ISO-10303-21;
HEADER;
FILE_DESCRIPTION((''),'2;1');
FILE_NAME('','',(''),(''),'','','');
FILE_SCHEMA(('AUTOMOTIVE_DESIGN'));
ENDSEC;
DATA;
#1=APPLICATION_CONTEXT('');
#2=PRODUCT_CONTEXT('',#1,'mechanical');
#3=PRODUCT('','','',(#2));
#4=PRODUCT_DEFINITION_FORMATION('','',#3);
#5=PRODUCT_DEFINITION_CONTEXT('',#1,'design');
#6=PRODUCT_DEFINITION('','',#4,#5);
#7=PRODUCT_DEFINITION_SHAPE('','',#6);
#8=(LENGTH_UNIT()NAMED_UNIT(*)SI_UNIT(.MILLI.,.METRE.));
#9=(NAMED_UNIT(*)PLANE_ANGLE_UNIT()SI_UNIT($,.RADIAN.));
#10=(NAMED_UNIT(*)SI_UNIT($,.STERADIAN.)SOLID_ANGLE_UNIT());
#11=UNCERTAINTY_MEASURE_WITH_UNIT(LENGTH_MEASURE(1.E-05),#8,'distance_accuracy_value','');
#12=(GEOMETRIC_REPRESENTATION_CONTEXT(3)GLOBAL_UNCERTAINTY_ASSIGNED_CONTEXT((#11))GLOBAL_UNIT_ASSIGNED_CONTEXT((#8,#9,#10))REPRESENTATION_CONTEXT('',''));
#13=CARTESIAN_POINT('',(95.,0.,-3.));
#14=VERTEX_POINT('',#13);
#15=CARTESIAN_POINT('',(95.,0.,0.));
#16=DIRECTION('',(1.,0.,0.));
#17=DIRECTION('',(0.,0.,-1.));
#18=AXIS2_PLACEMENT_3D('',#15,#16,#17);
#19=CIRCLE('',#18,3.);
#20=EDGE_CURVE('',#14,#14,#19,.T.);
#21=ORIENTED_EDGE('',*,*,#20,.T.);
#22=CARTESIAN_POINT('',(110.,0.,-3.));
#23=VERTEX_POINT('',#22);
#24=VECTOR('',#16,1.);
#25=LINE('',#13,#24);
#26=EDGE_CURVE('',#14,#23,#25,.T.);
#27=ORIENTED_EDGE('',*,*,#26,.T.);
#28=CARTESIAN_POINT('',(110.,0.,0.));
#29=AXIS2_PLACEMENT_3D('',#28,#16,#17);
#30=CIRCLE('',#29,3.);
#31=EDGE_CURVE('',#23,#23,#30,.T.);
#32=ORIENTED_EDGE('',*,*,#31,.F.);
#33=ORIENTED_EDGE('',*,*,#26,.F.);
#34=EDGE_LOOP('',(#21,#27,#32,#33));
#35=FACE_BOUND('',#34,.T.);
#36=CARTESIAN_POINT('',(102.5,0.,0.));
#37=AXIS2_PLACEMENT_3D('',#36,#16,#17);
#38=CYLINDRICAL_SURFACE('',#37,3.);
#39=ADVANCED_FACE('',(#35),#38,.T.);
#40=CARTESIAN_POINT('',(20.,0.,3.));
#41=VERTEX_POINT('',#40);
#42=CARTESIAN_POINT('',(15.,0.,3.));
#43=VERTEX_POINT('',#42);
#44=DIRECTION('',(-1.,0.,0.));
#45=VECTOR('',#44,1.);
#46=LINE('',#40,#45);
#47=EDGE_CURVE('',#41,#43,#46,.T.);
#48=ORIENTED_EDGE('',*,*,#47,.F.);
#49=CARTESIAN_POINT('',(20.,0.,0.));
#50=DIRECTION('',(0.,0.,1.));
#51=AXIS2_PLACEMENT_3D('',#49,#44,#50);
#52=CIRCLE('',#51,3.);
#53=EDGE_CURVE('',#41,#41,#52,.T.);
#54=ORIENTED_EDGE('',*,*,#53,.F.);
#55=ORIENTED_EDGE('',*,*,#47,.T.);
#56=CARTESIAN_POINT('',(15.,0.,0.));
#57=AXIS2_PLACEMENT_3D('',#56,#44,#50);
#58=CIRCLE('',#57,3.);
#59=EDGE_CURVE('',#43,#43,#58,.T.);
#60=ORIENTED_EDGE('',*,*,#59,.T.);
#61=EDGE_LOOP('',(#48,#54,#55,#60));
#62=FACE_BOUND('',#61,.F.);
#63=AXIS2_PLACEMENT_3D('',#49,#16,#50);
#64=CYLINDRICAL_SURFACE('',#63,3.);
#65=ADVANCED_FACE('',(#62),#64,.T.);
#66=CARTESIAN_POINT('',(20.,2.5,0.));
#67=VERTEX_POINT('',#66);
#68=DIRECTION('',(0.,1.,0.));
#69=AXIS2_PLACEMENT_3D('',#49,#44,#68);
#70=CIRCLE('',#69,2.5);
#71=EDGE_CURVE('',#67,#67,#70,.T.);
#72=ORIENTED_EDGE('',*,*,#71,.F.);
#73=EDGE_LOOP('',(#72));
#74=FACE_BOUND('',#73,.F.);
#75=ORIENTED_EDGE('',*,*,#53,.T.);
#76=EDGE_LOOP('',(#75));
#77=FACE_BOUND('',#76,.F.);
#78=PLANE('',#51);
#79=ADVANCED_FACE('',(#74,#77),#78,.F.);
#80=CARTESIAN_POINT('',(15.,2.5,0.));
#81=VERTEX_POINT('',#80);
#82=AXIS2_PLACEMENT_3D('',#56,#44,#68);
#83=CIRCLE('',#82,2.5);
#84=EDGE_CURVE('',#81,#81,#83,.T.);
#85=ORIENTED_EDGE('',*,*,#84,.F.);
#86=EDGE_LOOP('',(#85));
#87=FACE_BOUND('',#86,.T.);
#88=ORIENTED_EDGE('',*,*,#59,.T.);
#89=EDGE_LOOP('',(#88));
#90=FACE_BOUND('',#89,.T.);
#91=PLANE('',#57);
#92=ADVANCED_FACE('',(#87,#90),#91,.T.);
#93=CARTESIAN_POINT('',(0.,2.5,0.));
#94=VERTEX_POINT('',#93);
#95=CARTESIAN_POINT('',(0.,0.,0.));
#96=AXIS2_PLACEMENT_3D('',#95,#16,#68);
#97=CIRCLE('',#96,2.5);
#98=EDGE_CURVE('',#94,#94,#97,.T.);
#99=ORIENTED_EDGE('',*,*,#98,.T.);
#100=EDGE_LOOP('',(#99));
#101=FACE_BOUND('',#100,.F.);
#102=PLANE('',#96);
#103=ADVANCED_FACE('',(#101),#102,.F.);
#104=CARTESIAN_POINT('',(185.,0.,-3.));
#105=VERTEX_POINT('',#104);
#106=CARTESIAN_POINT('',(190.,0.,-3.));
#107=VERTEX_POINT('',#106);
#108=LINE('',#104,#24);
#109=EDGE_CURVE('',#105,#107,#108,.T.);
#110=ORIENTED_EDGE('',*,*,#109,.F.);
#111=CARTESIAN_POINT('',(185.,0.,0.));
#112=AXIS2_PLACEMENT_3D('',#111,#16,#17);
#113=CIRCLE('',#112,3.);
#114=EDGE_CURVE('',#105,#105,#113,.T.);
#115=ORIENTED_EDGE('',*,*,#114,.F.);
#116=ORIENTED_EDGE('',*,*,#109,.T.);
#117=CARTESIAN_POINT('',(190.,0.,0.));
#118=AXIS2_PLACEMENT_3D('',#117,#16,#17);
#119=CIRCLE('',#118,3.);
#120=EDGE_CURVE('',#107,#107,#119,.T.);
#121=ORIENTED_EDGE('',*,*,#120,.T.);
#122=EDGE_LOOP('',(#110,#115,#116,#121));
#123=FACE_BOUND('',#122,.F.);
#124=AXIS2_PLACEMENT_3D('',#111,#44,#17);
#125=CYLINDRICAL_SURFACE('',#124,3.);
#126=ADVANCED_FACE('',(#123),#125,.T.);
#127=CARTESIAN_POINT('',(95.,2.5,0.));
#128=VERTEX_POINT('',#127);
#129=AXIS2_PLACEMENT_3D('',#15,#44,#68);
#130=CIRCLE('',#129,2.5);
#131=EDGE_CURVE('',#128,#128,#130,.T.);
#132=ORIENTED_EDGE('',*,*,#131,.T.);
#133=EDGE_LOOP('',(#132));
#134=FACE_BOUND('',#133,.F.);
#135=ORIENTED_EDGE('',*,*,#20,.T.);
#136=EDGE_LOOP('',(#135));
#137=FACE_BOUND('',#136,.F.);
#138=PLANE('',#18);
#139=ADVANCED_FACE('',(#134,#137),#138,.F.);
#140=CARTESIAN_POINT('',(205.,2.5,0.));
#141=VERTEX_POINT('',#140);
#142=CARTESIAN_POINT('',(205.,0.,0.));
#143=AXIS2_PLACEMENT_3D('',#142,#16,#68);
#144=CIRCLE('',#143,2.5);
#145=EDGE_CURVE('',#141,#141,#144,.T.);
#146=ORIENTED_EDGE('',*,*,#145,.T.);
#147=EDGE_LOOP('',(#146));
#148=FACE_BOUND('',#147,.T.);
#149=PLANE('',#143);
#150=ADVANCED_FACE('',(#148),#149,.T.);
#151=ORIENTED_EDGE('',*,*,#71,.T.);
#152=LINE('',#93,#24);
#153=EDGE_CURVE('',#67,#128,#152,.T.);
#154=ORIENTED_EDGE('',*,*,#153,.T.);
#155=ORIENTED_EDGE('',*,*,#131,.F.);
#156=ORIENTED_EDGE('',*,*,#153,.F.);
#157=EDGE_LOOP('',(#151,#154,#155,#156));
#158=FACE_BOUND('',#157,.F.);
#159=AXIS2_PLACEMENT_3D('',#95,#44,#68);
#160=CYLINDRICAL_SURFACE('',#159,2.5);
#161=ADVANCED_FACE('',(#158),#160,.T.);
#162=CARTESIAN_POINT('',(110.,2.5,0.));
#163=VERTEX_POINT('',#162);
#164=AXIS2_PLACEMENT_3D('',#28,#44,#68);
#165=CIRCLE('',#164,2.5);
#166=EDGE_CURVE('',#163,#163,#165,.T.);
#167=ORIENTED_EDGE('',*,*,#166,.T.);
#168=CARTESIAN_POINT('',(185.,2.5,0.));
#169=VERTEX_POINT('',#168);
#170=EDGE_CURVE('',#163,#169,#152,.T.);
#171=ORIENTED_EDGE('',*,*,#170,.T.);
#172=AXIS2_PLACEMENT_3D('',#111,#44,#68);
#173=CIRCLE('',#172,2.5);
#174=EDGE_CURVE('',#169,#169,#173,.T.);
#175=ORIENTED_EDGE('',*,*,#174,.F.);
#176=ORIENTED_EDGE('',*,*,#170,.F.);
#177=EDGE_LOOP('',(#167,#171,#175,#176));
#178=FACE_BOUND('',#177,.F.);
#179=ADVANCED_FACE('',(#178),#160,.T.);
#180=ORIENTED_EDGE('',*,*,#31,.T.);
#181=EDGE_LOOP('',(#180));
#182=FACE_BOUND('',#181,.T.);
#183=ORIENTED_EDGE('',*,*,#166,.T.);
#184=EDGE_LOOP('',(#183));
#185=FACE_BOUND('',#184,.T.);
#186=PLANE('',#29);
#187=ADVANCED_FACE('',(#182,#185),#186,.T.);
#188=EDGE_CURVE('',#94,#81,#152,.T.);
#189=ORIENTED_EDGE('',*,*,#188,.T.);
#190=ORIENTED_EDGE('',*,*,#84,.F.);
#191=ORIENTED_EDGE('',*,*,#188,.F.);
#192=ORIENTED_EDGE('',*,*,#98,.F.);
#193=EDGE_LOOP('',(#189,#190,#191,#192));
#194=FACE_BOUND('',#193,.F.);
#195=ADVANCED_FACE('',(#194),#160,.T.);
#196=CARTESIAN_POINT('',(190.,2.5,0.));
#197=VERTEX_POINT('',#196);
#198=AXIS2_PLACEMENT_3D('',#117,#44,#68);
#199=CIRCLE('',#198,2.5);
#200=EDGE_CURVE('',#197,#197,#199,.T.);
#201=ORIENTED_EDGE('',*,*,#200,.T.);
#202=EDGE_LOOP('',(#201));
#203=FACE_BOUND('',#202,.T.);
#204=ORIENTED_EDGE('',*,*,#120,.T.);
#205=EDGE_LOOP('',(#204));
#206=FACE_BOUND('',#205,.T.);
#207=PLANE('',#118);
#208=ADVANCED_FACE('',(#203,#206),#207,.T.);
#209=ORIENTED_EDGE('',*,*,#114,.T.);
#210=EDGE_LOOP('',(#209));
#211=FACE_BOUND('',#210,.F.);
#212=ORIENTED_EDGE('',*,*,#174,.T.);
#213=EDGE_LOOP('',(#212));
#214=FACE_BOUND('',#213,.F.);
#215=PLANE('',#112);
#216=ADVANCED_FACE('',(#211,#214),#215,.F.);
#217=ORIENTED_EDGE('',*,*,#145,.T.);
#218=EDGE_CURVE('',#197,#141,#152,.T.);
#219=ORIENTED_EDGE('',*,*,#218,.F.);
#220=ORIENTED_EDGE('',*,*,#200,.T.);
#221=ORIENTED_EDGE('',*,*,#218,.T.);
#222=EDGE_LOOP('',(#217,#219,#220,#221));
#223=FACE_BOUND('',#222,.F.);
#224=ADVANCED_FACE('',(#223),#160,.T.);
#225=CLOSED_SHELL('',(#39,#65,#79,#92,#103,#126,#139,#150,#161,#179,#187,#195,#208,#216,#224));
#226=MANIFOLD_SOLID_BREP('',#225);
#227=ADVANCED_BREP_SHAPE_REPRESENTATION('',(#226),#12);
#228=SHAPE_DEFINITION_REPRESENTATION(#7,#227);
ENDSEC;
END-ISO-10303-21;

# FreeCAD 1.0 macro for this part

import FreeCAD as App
import Part
import Sketcher

doc = App.newDocument("Part")
body = doc.addObject("PartDesign::Body", "Body")

sketch1 = body.newObject("Sketcher::SketchObject", "Sketch")
sketch1.AttachmentSupport = (doc.getObject("YZ_Plane"), [""])
sketch1.MapMode = "FlatFace"
sketch1.addGeometry(Part.Circle(App.Vector(0, 0, 0), App.Vector(0, 0, 1), 2.5), False)
sketch1.addConstraint([
    Sketcher.Constraint("Coincident", 0, 3, -1, 1),
    Sketcher.Constraint("Diameter", 0, 5.0),
])
pad1 = body.newObject("PartDesign::Pad", "Pad")
pad1.Profile = sketch1
pad1.Length = 205

sketch2 = body.newObject("Sketcher::SketchObject", "Sketch001")
sketch2.AttachmentSupport = (doc.getObject("YZ_Plane"), [""])
sketch2.MapMode = "FlatFace"
sketch2.AttachmentOffset = App.Placement(App.Vector(0, 0, 185), App.Rotation())
sketch2.addGeometry(Part.Circle(App.Vector(0, 0, 0), App.Vector(0, 0, 1), 3), False)
sketch2.addConstraint([
    Sketcher.Constraint("Coincident", 0, 3, -1, 1),
    Sketcher.Constraint("Diameter", 0, 6.0),
])
pad2 = body.newObject("PartDesign::Pad", "Pad001")
pad2.Profile = sketch2
pad2.Length = 5

sketch3 = body.newObject("Sketcher::SketchObject", "Sketch002")
sketch3.AttachmentSupport = (doc.getObject("YZ_Plane"), [""])
sketch3.MapMode = "FlatFace"
sketch3.AttachmentOffset = App.Placement(App.Vector(0, 0, 20), App.Rotation())
sketch3.addGeometry(Part.Circle(App.Vector(0, 0, 0), App.Vector(0, 0, 1), 3), False)
sketch3.addConstraint([
    Sketcher.Constraint("Coincident", 0, 3, -1, 1),
    Sketcher.Constraint("Diameter", 0, 6.0),
])
pad3 = body.newObject("PartDesign::Pad", "Pad002")
pad3.Profile = sketch3
pad3.Length = 5
pad3.Reversed = True

sketch4 = body.newObject("Sketcher::SketchObject", "Sketch003")
sketch4.AttachmentSupport = (doc.getObject("YZ_Plane"), [""])
sketch4.MapMode = "FlatFace"
sketch4.AttachmentOffset = App.Placement(App.Vector(0, 0, 102.5), App.Rotation())
sketch4.addGeometry(Part.Circle(App.Vector(0, 0, 0), App.Vector(0, 0, 1), 3), False)
sketch4.addConstraint([
    Sketcher.Constraint("Coincident", 0, 3, -1, 1),
    Sketcher.Constraint("Diameter", 0, 6.0),
])
pad4 = body.newObject("PartDesign::Pad", "Pad003")
pad4.Profile = sketch4
pad4.Length = 15
pad4.Midplane = True

doc.recompute()
